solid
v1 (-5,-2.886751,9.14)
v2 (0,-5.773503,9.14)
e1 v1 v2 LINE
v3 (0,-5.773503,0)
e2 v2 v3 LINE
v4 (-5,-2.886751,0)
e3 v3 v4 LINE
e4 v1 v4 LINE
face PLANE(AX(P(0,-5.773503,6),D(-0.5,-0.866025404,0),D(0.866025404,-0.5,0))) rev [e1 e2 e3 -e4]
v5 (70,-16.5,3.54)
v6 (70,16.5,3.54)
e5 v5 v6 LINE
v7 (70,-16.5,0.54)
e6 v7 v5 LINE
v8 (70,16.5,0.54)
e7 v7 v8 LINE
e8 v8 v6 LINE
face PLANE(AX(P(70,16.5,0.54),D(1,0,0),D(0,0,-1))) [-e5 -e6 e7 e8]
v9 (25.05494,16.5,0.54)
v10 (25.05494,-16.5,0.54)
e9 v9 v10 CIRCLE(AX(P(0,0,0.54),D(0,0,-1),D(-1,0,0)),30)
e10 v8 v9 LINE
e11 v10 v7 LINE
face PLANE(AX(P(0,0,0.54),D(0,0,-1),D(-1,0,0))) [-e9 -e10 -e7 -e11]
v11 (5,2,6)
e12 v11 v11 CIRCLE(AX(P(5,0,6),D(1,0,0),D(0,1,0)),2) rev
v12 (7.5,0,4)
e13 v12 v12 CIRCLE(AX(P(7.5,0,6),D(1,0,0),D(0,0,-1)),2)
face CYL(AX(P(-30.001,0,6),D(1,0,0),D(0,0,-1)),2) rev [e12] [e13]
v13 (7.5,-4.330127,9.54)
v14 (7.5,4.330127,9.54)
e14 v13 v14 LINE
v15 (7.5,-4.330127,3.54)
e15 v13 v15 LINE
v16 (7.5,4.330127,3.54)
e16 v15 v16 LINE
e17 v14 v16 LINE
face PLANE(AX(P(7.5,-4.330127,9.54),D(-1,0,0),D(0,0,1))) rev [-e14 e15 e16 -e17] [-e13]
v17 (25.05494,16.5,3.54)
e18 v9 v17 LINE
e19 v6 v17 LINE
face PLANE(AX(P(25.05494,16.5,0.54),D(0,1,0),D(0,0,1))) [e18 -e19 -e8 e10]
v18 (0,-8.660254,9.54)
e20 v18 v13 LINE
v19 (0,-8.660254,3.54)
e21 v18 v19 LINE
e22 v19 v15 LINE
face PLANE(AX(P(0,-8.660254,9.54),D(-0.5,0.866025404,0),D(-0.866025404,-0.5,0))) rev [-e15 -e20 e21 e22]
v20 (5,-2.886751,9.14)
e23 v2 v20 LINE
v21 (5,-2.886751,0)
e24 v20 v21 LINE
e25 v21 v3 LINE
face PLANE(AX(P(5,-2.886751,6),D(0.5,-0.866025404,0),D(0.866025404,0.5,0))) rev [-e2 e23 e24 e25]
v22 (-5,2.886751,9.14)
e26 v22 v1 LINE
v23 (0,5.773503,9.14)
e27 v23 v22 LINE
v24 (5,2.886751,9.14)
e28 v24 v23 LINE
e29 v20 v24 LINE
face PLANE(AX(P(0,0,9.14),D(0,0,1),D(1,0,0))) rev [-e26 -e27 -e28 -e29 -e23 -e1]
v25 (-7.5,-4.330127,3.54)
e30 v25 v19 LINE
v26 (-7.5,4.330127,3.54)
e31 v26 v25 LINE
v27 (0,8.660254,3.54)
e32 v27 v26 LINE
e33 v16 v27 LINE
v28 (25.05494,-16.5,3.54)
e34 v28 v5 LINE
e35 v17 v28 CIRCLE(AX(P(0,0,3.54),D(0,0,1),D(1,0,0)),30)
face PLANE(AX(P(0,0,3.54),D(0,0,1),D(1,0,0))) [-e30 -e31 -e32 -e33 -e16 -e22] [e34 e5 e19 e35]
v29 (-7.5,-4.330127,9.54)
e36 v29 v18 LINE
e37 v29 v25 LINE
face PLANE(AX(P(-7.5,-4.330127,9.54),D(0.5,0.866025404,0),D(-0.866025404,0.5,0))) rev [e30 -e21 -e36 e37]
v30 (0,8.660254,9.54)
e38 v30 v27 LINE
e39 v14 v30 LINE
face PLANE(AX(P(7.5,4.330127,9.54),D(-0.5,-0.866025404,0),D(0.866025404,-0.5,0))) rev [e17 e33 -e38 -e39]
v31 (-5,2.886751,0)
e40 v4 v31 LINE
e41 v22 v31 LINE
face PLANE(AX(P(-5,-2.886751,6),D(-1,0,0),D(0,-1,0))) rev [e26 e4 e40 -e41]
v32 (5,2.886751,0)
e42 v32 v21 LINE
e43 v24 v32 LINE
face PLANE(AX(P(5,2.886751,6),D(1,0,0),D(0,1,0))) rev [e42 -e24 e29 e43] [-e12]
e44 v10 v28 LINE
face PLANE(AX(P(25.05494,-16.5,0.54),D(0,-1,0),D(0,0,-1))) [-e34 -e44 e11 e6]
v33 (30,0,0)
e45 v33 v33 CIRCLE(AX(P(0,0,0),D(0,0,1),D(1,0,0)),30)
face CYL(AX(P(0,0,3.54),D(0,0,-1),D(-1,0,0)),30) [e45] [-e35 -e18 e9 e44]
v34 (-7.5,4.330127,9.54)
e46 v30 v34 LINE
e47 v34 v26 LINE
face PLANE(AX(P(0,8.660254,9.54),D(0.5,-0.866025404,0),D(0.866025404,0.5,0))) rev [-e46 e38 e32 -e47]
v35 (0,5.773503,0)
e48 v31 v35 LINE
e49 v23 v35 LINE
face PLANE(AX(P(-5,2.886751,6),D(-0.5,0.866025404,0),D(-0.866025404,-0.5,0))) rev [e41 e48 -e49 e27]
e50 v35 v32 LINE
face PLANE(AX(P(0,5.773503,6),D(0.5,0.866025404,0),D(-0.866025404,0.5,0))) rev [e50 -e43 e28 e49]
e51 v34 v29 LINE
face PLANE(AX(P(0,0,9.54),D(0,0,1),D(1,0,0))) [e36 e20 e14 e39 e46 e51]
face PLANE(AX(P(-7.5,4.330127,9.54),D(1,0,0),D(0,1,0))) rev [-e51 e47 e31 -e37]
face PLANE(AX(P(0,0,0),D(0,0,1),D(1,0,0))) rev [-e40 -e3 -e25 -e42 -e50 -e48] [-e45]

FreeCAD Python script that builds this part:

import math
import FreeCAD as App
import Part
import Sketcher

V = App.Vector
Q = App.Units.Quantity

doc = App.newDocument("Part")
body = doc.addObject("PartDesign::Body", "Body")

sketch1 = body.newObject("Sketcher::SketchObject", "Sketch")
sketch1.AttachmentSupport = (doc.getObject("XY_Plane"), [""])
sketch1.MapMode = "FlatFace"
sketch1.addGeometry(Part.Circle(V(0, 0, 0), V(0, 0, 1), 30), False)
sketch1.addConstraint(Sketcher.Constraint("Coincident", 0, 3, -1, 1))
sketch1.addConstraint(Sketcher.Constraint("Diameter", 0, 60.0))
pad1 = body.newObject("PartDesign::Pad", "Pad")
pad1.Profile = sketch1
pad1.Length = 3.54

sketch2 = body.newObject("Sketcher::SketchObject", "Sketch001")
sketch2.AttachmentSupport = (doc.getObject("XY_Plane"), [""])
sketch2.MapMode = "FlatFace"
sketch2.AttachmentOffset = App.Placement(V(0, 0, 0.54), App.Rotation())
sketch2.addGeometry(Part.LineSegment(V(70, 16.5, 0), V(25.05494, 16.5, 0)), False)
sketch2.addGeometry(Part.ArcOfCircle(Part.Circle(V(0, 0, 0), V(0, 0, 1), 30), math.radians(-33.367013), math.radians(33.367013)), False)
sketch2.addGeometry(Part.LineSegment(V(25.05494, -16.5, 0), V(70, -16.5, 0)), False)
sketch2.addGeometry(Part.LineSegment(V(70, -16.5, 0), V(70, 16.5, 0)), False)
sketch2.addConstraint(Sketcher.Constraint("Coincident", 0, 2, 1, 2))
sketch2.addConstraint(Sketcher.Constraint("Coincident", 1, 1, 2, 1))
sketch2.addConstraint(Sketcher.Constraint("Coincident", 2, 2, 3, 1))
sketch2.addConstraint(Sketcher.Constraint("Coincident", 3, 2, 0, 1))
sketch2.addConstraint(Sketcher.Constraint("Horizontal", 0))
sketch2.addConstraint(Sketcher.Constraint("Horizontal", 2))
sketch2.addConstraint(Sketcher.Constraint("Vertical", 3))
sketch2.addConstraint(Sketcher.Constraint("Coincident", 1, 3, -1, 1))
sketch2.addConstraint(Sketcher.Constraint("Vertical", 0, 2, 1, 1))
sketch2.addConstraint(Sketcher.Constraint("Radius", 1, 30.0))
sketch2.addConstraint(Sketcher.Constraint("DistanceY", 3, 1, 3, 2, 33.0))
sketch2.addConstraint(Sketcher.Constraint("DistanceX", -1, 1, 2, 2, 70.0))
pad2 = body.newObject("PartDesign::Pad", "Pad001")
pad2.Profile = sketch2
pad2.Length = 3

sketch3 = body.newObject("Sketcher::SketchObject", "Sketch002")
sketch3.AttachmentSupport = (doc.getObject("XY_Plane"), [""])
sketch3.MapMode = "FlatFace"
sketch3.addGeometry(Part.LineSegment(V(0, 5.773503, 0), V(5, 2.886751, 0)), False)
sketch3.addGeometry(Part.LineSegment(V(5, 2.886751, 0), V(5, -2.886751, 0)), False)
sketch3.addGeometry(Part.LineSegment(V(5, -2.886751, 0), V(0, -5.773503, 0)), False)
sketch3.addGeometry(Part.LineSegment(V(0, -5.773503, 0), V(-5, -2.886751, 0)), False)
sketch3.addGeometry(Part.LineSegment(V(-5, -2.886751, 0), V(-5, 2.886751, 0)), False)
sketch3.addGeometry(Part.LineSegment(V(-5, 2.886751, 0), V(0, 5.773503, 0)), False)
sketch3.addConstraint(Sketcher.Constraint("Coincident", 0, 2, 1, 1))
sketch3.addConstraint(Sketcher.Constraint("Coincident", 1, 2, 2, 1))
sketch3.addConstraint(Sketcher.Constraint("Coincident", 2, 2, 3, 1))
sketch3.addConstraint(Sketcher.Constraint("Coincident", 3, 2, 4, 1))
sketch3.addConstraint(Sketcher.Constraint("Coincident", 4, 2, 5, 1))
sketch3.addConstraint(Sketcher.Constraint("Coincident", 5, 2, 0, 1))
sketch3.addConstraint(Sketcher.Constraint("Vertical", 1))
sketch3.addConstraint(Sketcher.Constraint("Vertical", 4))
sketch3.addConstraint(Sketcher.Constraint("Symmetric", 0, 2, 3, 2, -1, 1))
sketch3.addConstraint(Sketcher.Constraint("Symmetric", 2, 2, 5, 2, -1, 1))
sketch3.addConstraint(Sketcher.Constraint("PointOnObject", 2, 2, -2))
sketch3.addConstraint(Sketcher.Constraint("Parallel", 2, 5))
sketch3.addConstraint(Sketcher.Constraint("Horizontal", 1, 2, 3, 2))
sketch3.addConstraint(Sketcher.Constraint("Angle", 0, Q("-30 deg")))
sketch3.addConstraint(Sketcher.Constraint("DistanceX", -1, 1, 0, 2, 5.0))
sketch3.addConstraint(Sketcher.Constraint("DistanceY", 1, 2, 1, 1, 5.773503))
pocket1 = body.newObject("PartDesign::Pocket", "Pocket")
pocket1.Profile = sketch3
pocket1.Length = 6
pocket1.Reversed = True

sketch4 = body.newObject("Sketcher::SketchObject", "Sketch003")
sketch4.AttachmentSupport = (doc.getObject("XY_Plane"), [""])
sketch4.MapMode = "FlatFace"
sketch4.AttachmentOffset = App.Placement(V(0, 0, 3.54), App.Rotation())
sketch4.addGeometry(Part.LineSegment(V(0, 8.660254, 0), V(-7.5, 4.330127, 0)), False)
sketch4.addGeometry(Part.LineSegment(V(-7.5, 4.330127, 0), V(-7.5, -4.330127, 0)), False)
sketch4.addGeometry(Part.LineSegment(V(-7.5, -4.330127, 0), V(0, -8.660254, 0)), False)
sketch4.addGeometry(Part.LineSegment(V(0, -8.660254, 0), V(7.5, -4.330127, 0)), False)
sketch4.addGeometry(Part.LineSegment(V(7.5, -4.330127, 0), V(7.5, 4.330127, 0)), False)
sketch4.addGeometry(Part.LineSegment(V(7.5, 4.330127, 0), V(0, 8.660254, 0)), False)
sketch4.addGeometry(Part.LineSegment(V(-5, 2.886751, 0), V(0, 5.773503, 0)), False)
sketch4.addGeometry(Part.LineSegment(V(0, 5.773503, 0), V(5, 2.886751, 0)), False)
sketch4.addGeometry(Part.LineSegment(V(5, 2.886751, 0), V(5, -2.886751, 0)), False)
sketch4.addGeometry(Part.LineSegment(V(5, -2.886751, 0), V(0, -5.773503, 0)), False)
sketch4.addGeometry(Part.LineSegment(V(0, -5.773503, 0), V(-5, -2.886751, 0)), False)
sketch4.addGeometry(Part.LineSegment(V(-5, -2.886751, 0), V(-5, 2.886751, 0)), False)
sketch4.addConstraint(Sketcher.Constraint("Coincident", 0, 2, 1, 1))
sketch4.addConstraint(Sketcher.Constraint("Coincident", 1, 2, 2, 1))
sketch4.addConstraint(Sketcher.Constraint("Coincident", 2, 2, 3, 1))
sketch4.addConstraint(Sketcher.Constraint("Coincident", 3, 2, 4, 1))
sketch4.addConstraint(Sketcher.Constraint("Coincident", 4, 2, 5, 1))
sketch4.addConstraint(Sketcher.Constraint("Coincident", 5, 2, 0, 1))
sketch4.addConstraint(Sketcher.Constraint("Coincident", 6, 2, 7, 1))
sketch4.addConstraint(Sketcher.Constraint("Coincident", 7, 2, 8, 1))
sketch4.addConstraint(Sketcher.Constraint("Coincident", 8, 2, 9, 1))
sketch4.addConstraint(Sketcher.Constraint("Coincident", 9, 2, 10, 1))
sketch4.addConstraint(Sketcher.Constraint("Coincident", 10, 2, 11, 1))
sketch4.addConstraint(Sketcher.Constraint("Coincident", 11, 2, 6, 1))
sketch4.addConstraint(Sketcher.Constraint("Vertical", 1))
sketch4.addConstraint(Sketcher.Constraint("Vertical", 4))
sketch4.addConstraint(Sketcher.Constraint("Vertical", 8))
sketch4.addConstraint(Sketcher.Constraint("Vertical", 11))
sketch4.addConstraint(Sketcher.Constraint("Symmetric", 0, 2, 3, 2, -1, 1))
sketch4.addConstraint(Sketcher.Constraint("Symmetric", 2, 2, 5, 2, -1, 1))
sketch4.addConstraint(Sketcher.Constraint("Symmetric", 6, 2, 9, 2, -1, 1))
sketch4.addConstraint(Sketcher.Constraint("Symmetric", 7, 2, 10, 2, -1, 1))
sketch4.addConstraint(Sketcher.Constraint("PointOnObject", 2, 2, -2))
sketch4.addConstraint(Sketcher.Constraint("PointOnObject", 6, 2, -2))
sketch4.addConstraint(Sketcher.Constraint("Parallel", 2, 5))
sketch4.addConstraint(Sketcher.Constraint("Parallel", 3, 6))
sketch4.addConstraint(Sketcher.Constraint("Parallel", 5, 7))
sketch4.addConstraint(Sketcher.Constraint("Parallel", 6, 9))
sketch4.addConstraint(Sketcher.Constraint("Horizontal", 1, 2, 3, 2))
sketch4.addConstraint(Sketcher.Constraint("Angle", 0, Q("-150 deg")))
sketch4.addConstraint(Sketcher.Constraint("DistanceX", -1, 1, 7, 2, 5.0))
sketch4.addConstraint(Sketcher.Constraint("DistanceX", 1, 2, 3, 2, 15.0))
sketch4.addConstraint(Sketcher.Constraint("DistanceY", 1, 2, 1, 1, 8.660254))
sketch4.addConstraint(Sketcher.Constraint("DistanceY", 8, 2, 8, 1, 5.773503))
pad3 = body.newObject("PartDesign::Pad", "Pad002")
pad3.Profile = sketch4
pad3.Length = 6

sketch5 = body.newObject("Sketcher::SketchObject", "Sketch004")
sketch5.AttachmentSupport = (doc.getObject("XY_Plane"), [""])
sketch5.MapMode = "FlatFace"
sketch5.AttachmentOffset = App.Placement(V(0, 0, 9.54), App.Rotation())
sketch5.addGeometry(Part.LineSegment(V(0, 5.773503, 0), V(-5, 2.886751, 0)), False)
sketch5.addGeometry(Part.LineSegment(V(-5, 2.886751, 0), V(-5, -2.886751, 0)), False)
sketch5.addGeometry(Part.LineSegment(V(-5, -2.886751, 0), V(0, -5.773503, 0)), False)
sketch5.addGeometry(Part.LineSegment(V(0, -5.773503, 0), V(5, -2.886751, 0)), False)
sketch5.addGeometry(Part.LineSegment(V(5, -2.886751, 0), V(5, 2.886751, 0)), False)
sketch5.addGeometry(Part.LineSegment(V(5, 2.886751, 0), V(0, 5.773503, 0)), False)
sketch5.addConstraint(Sketcher.Constraint("Coincident", 0, 2, 1, 1))
sketch5.addConstraint(Sketcher.Constraint("Coincident", 1, 2, 2, 1))
sketch5.addConstraint(Sketcher.Constraint("Coincident", 2, 2, 3, 1))
sketch5.addConstraint(Sketcher.Constraint("Coincident", 3, 2, 4, 1))
sketch5.addConstraint(Sketcher.Constraint("Coincident", 4, 2, 5, 1))
sketch5.addConstraint(Sketcher.Constraint("Coincident", 5, 2, 0, 1))
sketch5.addConstraint(Sketcher.Constraint("Vertical", 1))
sketch5.addConstraint(Sketcher.Constraint("Vertical", 4))
sketch5.addConstraint(Sketcher.Constraint("Symmetric", 0, 2, 3, 2, -1, 1))
sketch5.addConstraint(Sketcher.Constraint("Symmetric", 2, 2, 5, 2, -1, 1))
sketch5.addConstraint(Sketcher.Constraint("PointOnObject", 2, 2, -2))
sketch5.addConstraint(Sketcher.Constraint("Parallel", 2, 5))
sketch5.addConstraint(Sketcher.Constraint("Horizontal", 1, 2, 3, 2))
sketch5.addConstraint(Sketcher.Constraint("Angle", 0, Q("-150 deg")))
sketch5.addConstraint(Sketcher.Constraint("DistanceX", 0, 2, -1, 1, 5.0))
sketch5.addConstraint(Sketcher.Constraint("DistanceY", 1, 2, 1, 1, 5.773503))
pad4 = body.newObject("PartDesign::Pad", "Pad003")
pad4.Profile = sketch5
pad4.Length = 0.4
pad4.Reversed = True

sketch6 = body.newObject("Sketcher::SketchObject", "Sketch005")
sketch6.AttachmentSupport = (doc.getObject("YZ_Plane"), [""])
sketch6.MapMode = "FlatFace"
sketch6.AttachmentOffset = App.Placement(V(0, 0, 7.5), App.Rotation())
sketch6.addGeometry(Part.Circle(V(0, 6, 0), V(0, 0, 1), 2), False)
sketch6.addConstraint(Sketcher.Constraint("PointOnObject", 0, 3, -2))
sketch6.addConstraint(Sketcher.Constraint("Diameter", 0, 4.0))
sketch6.addConstraint(Sketcher.Constraint("DistanceY", -1, 1, 0, 3, 6.0))
pocket2 = body.newObject("PartDesign::Pocket", "Pocket001")
pocket2.Profile = sketch6
pocket2.Type = "UpToFirst"

doc.recompute()
